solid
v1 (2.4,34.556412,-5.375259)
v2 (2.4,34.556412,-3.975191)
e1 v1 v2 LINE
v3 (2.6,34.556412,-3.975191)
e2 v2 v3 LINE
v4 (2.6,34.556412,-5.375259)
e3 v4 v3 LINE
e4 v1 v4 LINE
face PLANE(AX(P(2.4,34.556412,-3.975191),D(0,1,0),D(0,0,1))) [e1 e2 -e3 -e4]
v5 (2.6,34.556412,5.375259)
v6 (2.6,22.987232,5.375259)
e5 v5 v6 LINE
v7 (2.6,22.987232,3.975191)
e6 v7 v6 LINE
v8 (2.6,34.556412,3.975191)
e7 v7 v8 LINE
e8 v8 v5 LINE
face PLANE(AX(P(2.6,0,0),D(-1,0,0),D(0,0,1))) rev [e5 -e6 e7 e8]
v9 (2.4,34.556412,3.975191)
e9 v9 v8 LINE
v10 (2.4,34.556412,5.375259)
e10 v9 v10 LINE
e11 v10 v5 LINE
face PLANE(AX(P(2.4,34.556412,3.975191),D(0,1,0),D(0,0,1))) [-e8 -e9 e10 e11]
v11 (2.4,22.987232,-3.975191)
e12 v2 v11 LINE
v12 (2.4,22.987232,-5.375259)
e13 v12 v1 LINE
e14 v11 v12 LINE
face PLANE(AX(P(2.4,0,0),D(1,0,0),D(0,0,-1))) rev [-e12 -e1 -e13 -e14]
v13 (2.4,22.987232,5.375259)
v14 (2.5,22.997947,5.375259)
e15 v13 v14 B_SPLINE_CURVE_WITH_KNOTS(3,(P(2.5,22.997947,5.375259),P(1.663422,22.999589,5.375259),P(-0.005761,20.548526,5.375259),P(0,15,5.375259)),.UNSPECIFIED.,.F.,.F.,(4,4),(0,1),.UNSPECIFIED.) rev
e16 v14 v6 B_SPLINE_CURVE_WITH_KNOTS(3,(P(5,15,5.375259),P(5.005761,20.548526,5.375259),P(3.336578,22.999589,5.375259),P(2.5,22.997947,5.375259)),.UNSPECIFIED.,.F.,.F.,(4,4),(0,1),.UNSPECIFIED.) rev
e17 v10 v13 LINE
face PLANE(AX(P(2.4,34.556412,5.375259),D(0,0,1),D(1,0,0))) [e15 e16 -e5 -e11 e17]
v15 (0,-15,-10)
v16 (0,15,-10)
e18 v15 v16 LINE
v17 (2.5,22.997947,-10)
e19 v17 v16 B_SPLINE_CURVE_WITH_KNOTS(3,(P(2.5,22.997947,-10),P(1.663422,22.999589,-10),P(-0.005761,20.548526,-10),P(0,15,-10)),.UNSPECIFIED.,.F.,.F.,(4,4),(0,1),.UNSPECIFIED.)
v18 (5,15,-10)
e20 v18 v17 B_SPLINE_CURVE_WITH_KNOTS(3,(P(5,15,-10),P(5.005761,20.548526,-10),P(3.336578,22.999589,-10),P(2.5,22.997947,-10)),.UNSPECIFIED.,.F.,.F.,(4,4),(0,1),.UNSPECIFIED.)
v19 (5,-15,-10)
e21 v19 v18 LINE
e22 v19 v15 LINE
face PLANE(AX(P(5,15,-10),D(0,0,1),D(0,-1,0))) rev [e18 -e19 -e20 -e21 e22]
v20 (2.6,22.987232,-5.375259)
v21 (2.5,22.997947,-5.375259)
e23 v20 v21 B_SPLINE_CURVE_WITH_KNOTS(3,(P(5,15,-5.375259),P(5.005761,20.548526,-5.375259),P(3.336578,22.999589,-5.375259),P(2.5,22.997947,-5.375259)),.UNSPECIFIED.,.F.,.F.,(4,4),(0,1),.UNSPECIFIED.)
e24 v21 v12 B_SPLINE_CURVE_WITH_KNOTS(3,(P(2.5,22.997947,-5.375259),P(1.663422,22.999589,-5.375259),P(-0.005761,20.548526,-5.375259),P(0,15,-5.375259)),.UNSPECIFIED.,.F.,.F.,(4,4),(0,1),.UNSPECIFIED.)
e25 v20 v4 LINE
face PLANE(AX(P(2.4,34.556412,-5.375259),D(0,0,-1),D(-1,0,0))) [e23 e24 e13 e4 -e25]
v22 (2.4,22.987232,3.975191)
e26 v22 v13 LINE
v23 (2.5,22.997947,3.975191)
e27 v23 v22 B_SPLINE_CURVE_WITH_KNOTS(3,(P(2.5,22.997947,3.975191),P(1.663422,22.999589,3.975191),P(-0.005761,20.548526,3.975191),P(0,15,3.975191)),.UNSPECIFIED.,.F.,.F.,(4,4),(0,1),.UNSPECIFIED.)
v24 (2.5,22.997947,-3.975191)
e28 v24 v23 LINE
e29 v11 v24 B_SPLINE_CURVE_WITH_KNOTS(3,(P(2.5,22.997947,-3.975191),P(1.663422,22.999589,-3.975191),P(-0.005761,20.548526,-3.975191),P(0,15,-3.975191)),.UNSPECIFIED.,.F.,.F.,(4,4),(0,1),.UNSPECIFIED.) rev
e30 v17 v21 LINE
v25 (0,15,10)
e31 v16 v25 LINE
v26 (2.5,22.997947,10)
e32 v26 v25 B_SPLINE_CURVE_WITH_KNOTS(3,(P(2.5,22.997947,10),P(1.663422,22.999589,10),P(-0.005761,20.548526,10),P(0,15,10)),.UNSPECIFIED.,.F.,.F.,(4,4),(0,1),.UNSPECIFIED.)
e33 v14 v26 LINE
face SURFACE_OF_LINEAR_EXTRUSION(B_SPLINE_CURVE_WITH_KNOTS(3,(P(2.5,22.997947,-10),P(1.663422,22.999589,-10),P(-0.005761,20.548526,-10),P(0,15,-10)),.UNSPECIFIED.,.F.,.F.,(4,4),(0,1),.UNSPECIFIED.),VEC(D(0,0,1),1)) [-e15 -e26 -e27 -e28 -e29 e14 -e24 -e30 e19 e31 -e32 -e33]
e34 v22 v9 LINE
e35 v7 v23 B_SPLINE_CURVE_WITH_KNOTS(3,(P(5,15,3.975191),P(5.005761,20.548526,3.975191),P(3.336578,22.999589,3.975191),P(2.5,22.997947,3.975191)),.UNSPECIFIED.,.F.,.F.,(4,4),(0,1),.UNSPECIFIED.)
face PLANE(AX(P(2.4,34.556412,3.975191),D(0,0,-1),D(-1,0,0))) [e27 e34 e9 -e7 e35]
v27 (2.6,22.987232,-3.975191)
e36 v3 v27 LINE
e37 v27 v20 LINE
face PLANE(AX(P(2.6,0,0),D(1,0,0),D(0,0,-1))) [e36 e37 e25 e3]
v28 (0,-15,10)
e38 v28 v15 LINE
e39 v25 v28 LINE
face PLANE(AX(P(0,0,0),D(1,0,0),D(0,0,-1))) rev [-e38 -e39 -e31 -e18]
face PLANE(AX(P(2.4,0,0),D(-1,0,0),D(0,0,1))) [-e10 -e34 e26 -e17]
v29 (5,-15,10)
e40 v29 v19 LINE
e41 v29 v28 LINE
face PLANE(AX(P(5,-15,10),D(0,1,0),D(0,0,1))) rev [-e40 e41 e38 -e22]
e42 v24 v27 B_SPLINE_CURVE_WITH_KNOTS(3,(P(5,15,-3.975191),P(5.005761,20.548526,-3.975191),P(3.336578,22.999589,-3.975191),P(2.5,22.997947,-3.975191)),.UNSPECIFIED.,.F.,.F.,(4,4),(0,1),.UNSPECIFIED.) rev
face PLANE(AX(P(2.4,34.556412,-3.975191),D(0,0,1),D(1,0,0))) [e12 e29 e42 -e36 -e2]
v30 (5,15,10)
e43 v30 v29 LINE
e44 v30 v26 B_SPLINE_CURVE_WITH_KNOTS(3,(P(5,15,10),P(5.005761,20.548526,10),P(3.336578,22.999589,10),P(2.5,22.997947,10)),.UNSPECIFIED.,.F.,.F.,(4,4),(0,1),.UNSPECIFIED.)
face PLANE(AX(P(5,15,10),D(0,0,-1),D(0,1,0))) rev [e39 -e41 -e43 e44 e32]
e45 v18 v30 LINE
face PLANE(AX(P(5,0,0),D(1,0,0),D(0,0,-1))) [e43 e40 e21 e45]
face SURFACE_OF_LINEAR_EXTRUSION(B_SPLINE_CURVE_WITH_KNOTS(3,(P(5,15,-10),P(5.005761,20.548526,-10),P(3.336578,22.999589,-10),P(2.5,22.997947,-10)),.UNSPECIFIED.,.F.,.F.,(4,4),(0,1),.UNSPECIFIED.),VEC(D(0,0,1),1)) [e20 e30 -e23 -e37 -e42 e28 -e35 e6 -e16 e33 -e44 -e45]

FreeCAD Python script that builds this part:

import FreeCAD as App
import Part
import Sketcher
from FreeCAD import Vector


def add_polygon(sketch, points):
    """Adds a closed chain of lines whose ends are joined by coincident constraints."""
    first, n = sketch.GeometryCount, len(points)
    for a, b in zip(points, points[1:] + points[:1]):
        sketch.addGeometry(Part.LineSegment(App.Vector(*a, 0), App.Vector(*b, 0)), False)
    for i in range(n):
        sketch.addConstraint(Sketcher.Constraint("Coincident", first + i, 2, first + (i + 1) % n, 1))

doc = App.newDocument("Part")
body = doc.addObject("PartDesign::Body", "Body")

sketch1 = doc.addObject("Sketcher::SketchObject", "Sketch")
body.addObject(sketch1)
sketch1.AttachmentSupport = (doc.YZ_Plane, [""])
sketch1.MapMode = "FlatFace"
add_polygon(sketch1, [(15, 10), (-15, 10), (-15, -10), (15, -10)])
sketch1.addConstraint([
    Sketcher.Constraint("Horizontal", 0),
    Sketcher.Constraint("Vertical", 1),
    Sketcher.Constraint("Horizontal", 2),
    Sketcher.Constraint("Vertical", 3),
    Sketcher.Constraint("Symmetric", 0, 2, 2, 2, -1, 1),
    Sketcher.Constraint("DistanceX", 0, 2, 0, 1, 30.0),
    Sketcher.Constraint("DistanceY", 1, 2, 1, 1, 20.0),
])
pad1 = doc.addObject("PartDesign::Pad", "Pad")
body.addObject(pad1)
pad1.Profile = sketch1
pad1.Length = 5

sketch2 = doc.addObject("Sketcher::SketchObject", "Sketch001")
body.addObject(sketch2)
sketch2.AttachmentSupport = (doc.XY_Plane, [""])
sketch2.MapMode = "FlatFace"
sketch2.addGeometry([
    Part.LineSegment(Vector(0, 15, 0), Vector(5, 15, 0)),
    Part.BSplineCurve([Vector(2.5, 22.997947, 0), Vector(3.336578, 22.999589, 0), Vector(5.005761, 20.548526, 0), Vector(5, 15, 0)], [4, 4], [0, 1], False, 3, [1, 1, 1, 1], False),
    Part.BSplineCurve([Vector(2.5, 22.997947, 0), Vector(1.663422, 22.999589, 0), Vector(-0.005761, 20.548526, 0), Vector(0, 15, 0)], [4, 4], [0, 1], False, 3, [1, 1, 1, 1], False),
], False)
sketch2.addConstraint([
    Sketcher.Constraint("Block", 1),
    Sketcher.Constraint("Block", 2),
    Sketcher.Constraint("Coincident", 0, 2, 1, 2),
    Sketcher.Constraint("Coincident", 2, 2, 0, 1),
])
pad2 = doc.addObject("PartDesign::Pad", "Pad001")
body.addObject(pad2)
pad2.Profile = sketch2
pad2.Type = "TwoLengths"
pad2.Length = 10
pad2.Length2 = 10

sketch3 = doc.addObject("Sketcher::SketchObject", "Sketch002")
body.addObject(sketch3)
sketch3.AttachmentSupport = (doc.YZ_Plane, [""])
sketch3.MapMode = "FlatFace"
sketch3.AttachmentOffset = App.Placement(Vector(0, 0, 2.5), App.Rotation())
add_polygon(sketch3, [(34.556412, -3.975191), (17.044457, -3.975191), (17.044457, -5.375259), (34.556412, -5.375259)])
add_polygon(sketch3, [(34.556412, 5.375259), (17.044457, 5.375259), (17.044457, 3.975191), (34.556412, 3.975191)])
sketch3.addConstraint([
    Sketcher.Constraint("Horizontal", 0),
    Sketcher.Constraint("Vertical", 1),
    Sketcher.Constraint("Horizontal", 2),
    Sketcher.Constraint("Vertical", 3),
    Sketcher.Constraint("Horizontal", 4),
    Sketcher.Constraint("Vertical", 5),
    Sketcher.Constraint("Horizontal", 6),
    Sketcher.Constraint("Vertical", 7),
    Sketcher.Constraint("Symmetric", 1, 2, 4, 2, -1),
    Sketcher.Constraint("Symmetric", 3, 2, 6, 2, -1),
    Sketcher.Constraint("DistanceX", 0, 2, 0, 1, 17.511955),
    Sketcher.Constraint("DistanceY", 1, 2, 1, 1, 1.400067),
    Sketcher.Constraint("DistanceY", 0, 2, -1, 1, 3.975191),
    Sketcher.Constraint("DistanceX", -1, 1, 2, 2, 34.556412),
])
pad3 = doc.addObject("PartDesign::Pad", "Pad002")
body.addObject(pad3)
pad3.Profile = sketch3
pad3.Type = "TwoLengths"
pad3.Length = 0.1
pad3.Length2 = 0.1

doc.recompute()
